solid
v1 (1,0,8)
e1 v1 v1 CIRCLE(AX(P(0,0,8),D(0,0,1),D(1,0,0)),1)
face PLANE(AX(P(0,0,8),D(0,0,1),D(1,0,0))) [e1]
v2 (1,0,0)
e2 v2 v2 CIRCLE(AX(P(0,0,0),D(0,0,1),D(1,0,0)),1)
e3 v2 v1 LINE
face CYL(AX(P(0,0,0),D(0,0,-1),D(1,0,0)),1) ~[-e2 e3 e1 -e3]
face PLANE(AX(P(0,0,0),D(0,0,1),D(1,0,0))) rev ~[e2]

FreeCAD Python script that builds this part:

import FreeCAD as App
import Part
import Sketcher
Q = App.Units.Quantity

doc = App.newDocument("Part")
body = doc.addObject("PartDesign::Body", "Body")

# Sketch on XY plane
sketch1 = body.newObject("Sketcher::SketchObject", "Sketch")
sketch1.AttachmentSupport = (doc.getObject("XY_Plane"), [""])
sketch1.MapMode = "FlatFace"
sketch1.addGeometry(Part.Circle(App.Vector(0, 0, 0), App.Vector(0, 0, 1), 1), False)
sketch1.addConstraint([
    Sketcher.Constraint("Coincident", 0, 3, -1, 1),
    Sketcher.Constraint("Diameter", 0, Q("2 mm")),
])
pad1 = body.newObject("PartDesign::Pad", "Pad")
pad1.Profile = sketch1
pad1.Length = 8

doc.recompute()
